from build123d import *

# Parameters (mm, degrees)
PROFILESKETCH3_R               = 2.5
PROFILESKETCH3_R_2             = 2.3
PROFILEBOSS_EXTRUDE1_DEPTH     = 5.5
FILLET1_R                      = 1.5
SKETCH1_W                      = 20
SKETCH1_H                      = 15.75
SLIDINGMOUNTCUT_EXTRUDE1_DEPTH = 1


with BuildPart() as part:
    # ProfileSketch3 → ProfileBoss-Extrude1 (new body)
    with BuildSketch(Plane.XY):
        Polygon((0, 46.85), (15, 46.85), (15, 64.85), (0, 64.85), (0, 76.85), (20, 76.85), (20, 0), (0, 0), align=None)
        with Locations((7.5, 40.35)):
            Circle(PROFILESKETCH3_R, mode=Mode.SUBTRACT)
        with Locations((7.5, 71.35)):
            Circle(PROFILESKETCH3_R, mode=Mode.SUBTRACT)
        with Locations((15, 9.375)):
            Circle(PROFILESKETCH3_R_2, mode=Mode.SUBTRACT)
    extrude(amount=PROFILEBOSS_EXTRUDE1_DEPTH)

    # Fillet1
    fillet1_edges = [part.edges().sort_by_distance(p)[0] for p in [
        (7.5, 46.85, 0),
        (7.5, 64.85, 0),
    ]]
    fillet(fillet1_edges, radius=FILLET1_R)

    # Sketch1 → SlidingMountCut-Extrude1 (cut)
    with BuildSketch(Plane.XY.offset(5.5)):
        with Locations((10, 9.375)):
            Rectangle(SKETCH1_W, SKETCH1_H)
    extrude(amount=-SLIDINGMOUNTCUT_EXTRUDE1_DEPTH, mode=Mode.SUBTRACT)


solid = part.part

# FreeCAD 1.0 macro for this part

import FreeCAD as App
import Part
import Sketcher
from FreeCAD import Vector
Q = App.Units.Quantity


def edges_at(feature, points):
    """Names of the edges that pass closest to the given points."""
    edges = feature.Shape.Edges
    near = lambda p: min(range(len(edges)), key=lambda i: edges[i].distToShape(Part.Vertex(*p))[0])
    return sorted({f"Edge{near(p) + 1}" for p in points})


def add_polygon(sketch, points):
    """Adds a closed chain of lines whose ends are joined by coincident constraints."""
    first, n = sketch.GeometryCount, len(points)
    for a, b in zip(points, points[1:] + points[:1]):
        sketch.addGeometry(Part.LineSegment(App.Vector(*a, 0), App.Vector(*b, 0)), False)
    for i in range(n):
        sketch.addConstraint(Sketcher.Constraint("Coincident", first + i, 2, first + (i + 1) % n, 1))

doc = App.newDocument("Part")
body = doc.addObject("PartDesign::Body", "Body")

sketch1 = body.newObject("Sketcher::SketchObject", "Sketch")
sketch1.AttachmentSupport = (doc.getObject("XY_Plane"), [""])
sketch1.MapMode = "FlatFace"
add_polygon(sketch1, [(15, 46.9), (0, 46.9), (0, 0), (20, 0), (20, 76.8), (0, 76.8), (0, 64.8), (15, 64.8)])
sketch1.addGeometry(Part.Circle(Vector(15, 9.4, 0), Vector(0, 0, 1), 2.3), False)
sketch1.addGeometry(Part.Circle(Vector(7.5, 40.4, 0), Vector(0, 0, 1), 2.5), False)
sketch1.addGeometry(Part.Circle(Vector(7.5, 71.3, 0), Vector(0, 0, 1), 2.5), False)
sketch1.addConstraint([
    Sketcher.Constraint("Horizontal", 0),
    Sketcher.Constraint("Vertical", 1),
    Sketcher.Constraint("Horizontal", 2),
    Sketcher.Constraint("Vertical", 3),
    Sketcher.Constraint("Horizontal", 4),
    Sketcher.Constraint("Vertical", 5),
    Sketcher.Constraint("Horizontal", 6),
    Sketcher.Constraint("Vertical", 7),
    Sketcher.Constraint("Coincident", 1, 2, -1, 1),
    Sketcher.Constraint("Equal", 9, 10),
    Sketcher.Constraint("PointOnObject", 4, 2, -2),
    Sketcher.Constraint("Vertical", 9, 3, 10, 3),
    Sketcher.Constraint("Vertical", 8, 3, 6, 2),
    Sketcher.Constraint("Diameter", 9, Q("5 mm")),
    Sketcher.Constraint("Diameter", 8, Q("4.6 mm")),
    Sketcher.Constraint("DistanceX", 0, 2, 0, 1, Q("15 mm")),
    Sketcher.Constraint("DistanceX", 2, 1, 2, 2, Q("20 mm")),
    Sketcher.Constraint("DistanceY", 5, 2, 5, 1, Q("12 mm")),
    Sketcher.Constraint("DistanceY", 7, 2, 7, 1, Q("18 mm")),
    Sketcher.Constraint("DistanceY", 9, 3, 10, 3, Q("31 mm")),
    Sketcher.Constraint("DistanceY", 1, 2, 1, 1, Q("46.85 mm")),
    Sketcher.Constraint("DistanceX", -1, 1, 9, 3, Q("7.5 mm")),
    Sketcher.Constraint("DistanceY", 9, 3, 0, 2, Q("6.5 mm")),
    Sketcher.Constraint("DistanceY", -1, 1, 8, 3, Q("9.375 mm")),
])
pad1 = body.newObject("PartDesign::Pad", "Pad")
pad1.Profile = sketch1
pad1.Length = 5.5
doc.recompute()

fillet = body.newObject("PartDesign::Fillet", "Fillet")
fillet.Base = (pad1, edges_at(pad1, [(7.5, 46.85, 0), (7.5, 64.85, 0)]))
fillet.Radius = 1.5

sketch2 = body.newObject("Sketcher::SketchObject", "Sketch001")
sketch2.AttachmentSupport = (doc.getObject("XY_Plane"), [""])
sketch2.MapMode = "FlatFace"
sketch2.AttachmentOffset = App.Placement(Vector(0, 0, 5.5), App.Rotation())
add_polygon(sketch2, [(0, 17), (0, 2), (20, 2), (20, 17)])
sketch2.addConstraint([
    Sketcher.Constraint("Vertical", 0),
    Sketcher.Constraint("Horizontal", 1),
    Sketcher.Constraint("Vertical", 2),
    Sketcher.Constraint("Horizontal", 3),
    Sketcher.Constraint("PointOnObject", 0, 2, -2),
    Sketcher.Constraint("DistanceX", 1, 1, 1, 2, Q("20 mm")),
    Sketcher.Constraint("DistanceY", 0, 2, 0, 1, Q("15.75 mm")),
    Sketcher.Constraint("DistanceY", -1, 1, 0, 2, Q("1.5 mm")),
])
pocket1 = body.newObject("PartDesign::Pocket", "Pocket")
pocket1.Profile = sketch2
pocket1.Length = 1

doc.recompute()
